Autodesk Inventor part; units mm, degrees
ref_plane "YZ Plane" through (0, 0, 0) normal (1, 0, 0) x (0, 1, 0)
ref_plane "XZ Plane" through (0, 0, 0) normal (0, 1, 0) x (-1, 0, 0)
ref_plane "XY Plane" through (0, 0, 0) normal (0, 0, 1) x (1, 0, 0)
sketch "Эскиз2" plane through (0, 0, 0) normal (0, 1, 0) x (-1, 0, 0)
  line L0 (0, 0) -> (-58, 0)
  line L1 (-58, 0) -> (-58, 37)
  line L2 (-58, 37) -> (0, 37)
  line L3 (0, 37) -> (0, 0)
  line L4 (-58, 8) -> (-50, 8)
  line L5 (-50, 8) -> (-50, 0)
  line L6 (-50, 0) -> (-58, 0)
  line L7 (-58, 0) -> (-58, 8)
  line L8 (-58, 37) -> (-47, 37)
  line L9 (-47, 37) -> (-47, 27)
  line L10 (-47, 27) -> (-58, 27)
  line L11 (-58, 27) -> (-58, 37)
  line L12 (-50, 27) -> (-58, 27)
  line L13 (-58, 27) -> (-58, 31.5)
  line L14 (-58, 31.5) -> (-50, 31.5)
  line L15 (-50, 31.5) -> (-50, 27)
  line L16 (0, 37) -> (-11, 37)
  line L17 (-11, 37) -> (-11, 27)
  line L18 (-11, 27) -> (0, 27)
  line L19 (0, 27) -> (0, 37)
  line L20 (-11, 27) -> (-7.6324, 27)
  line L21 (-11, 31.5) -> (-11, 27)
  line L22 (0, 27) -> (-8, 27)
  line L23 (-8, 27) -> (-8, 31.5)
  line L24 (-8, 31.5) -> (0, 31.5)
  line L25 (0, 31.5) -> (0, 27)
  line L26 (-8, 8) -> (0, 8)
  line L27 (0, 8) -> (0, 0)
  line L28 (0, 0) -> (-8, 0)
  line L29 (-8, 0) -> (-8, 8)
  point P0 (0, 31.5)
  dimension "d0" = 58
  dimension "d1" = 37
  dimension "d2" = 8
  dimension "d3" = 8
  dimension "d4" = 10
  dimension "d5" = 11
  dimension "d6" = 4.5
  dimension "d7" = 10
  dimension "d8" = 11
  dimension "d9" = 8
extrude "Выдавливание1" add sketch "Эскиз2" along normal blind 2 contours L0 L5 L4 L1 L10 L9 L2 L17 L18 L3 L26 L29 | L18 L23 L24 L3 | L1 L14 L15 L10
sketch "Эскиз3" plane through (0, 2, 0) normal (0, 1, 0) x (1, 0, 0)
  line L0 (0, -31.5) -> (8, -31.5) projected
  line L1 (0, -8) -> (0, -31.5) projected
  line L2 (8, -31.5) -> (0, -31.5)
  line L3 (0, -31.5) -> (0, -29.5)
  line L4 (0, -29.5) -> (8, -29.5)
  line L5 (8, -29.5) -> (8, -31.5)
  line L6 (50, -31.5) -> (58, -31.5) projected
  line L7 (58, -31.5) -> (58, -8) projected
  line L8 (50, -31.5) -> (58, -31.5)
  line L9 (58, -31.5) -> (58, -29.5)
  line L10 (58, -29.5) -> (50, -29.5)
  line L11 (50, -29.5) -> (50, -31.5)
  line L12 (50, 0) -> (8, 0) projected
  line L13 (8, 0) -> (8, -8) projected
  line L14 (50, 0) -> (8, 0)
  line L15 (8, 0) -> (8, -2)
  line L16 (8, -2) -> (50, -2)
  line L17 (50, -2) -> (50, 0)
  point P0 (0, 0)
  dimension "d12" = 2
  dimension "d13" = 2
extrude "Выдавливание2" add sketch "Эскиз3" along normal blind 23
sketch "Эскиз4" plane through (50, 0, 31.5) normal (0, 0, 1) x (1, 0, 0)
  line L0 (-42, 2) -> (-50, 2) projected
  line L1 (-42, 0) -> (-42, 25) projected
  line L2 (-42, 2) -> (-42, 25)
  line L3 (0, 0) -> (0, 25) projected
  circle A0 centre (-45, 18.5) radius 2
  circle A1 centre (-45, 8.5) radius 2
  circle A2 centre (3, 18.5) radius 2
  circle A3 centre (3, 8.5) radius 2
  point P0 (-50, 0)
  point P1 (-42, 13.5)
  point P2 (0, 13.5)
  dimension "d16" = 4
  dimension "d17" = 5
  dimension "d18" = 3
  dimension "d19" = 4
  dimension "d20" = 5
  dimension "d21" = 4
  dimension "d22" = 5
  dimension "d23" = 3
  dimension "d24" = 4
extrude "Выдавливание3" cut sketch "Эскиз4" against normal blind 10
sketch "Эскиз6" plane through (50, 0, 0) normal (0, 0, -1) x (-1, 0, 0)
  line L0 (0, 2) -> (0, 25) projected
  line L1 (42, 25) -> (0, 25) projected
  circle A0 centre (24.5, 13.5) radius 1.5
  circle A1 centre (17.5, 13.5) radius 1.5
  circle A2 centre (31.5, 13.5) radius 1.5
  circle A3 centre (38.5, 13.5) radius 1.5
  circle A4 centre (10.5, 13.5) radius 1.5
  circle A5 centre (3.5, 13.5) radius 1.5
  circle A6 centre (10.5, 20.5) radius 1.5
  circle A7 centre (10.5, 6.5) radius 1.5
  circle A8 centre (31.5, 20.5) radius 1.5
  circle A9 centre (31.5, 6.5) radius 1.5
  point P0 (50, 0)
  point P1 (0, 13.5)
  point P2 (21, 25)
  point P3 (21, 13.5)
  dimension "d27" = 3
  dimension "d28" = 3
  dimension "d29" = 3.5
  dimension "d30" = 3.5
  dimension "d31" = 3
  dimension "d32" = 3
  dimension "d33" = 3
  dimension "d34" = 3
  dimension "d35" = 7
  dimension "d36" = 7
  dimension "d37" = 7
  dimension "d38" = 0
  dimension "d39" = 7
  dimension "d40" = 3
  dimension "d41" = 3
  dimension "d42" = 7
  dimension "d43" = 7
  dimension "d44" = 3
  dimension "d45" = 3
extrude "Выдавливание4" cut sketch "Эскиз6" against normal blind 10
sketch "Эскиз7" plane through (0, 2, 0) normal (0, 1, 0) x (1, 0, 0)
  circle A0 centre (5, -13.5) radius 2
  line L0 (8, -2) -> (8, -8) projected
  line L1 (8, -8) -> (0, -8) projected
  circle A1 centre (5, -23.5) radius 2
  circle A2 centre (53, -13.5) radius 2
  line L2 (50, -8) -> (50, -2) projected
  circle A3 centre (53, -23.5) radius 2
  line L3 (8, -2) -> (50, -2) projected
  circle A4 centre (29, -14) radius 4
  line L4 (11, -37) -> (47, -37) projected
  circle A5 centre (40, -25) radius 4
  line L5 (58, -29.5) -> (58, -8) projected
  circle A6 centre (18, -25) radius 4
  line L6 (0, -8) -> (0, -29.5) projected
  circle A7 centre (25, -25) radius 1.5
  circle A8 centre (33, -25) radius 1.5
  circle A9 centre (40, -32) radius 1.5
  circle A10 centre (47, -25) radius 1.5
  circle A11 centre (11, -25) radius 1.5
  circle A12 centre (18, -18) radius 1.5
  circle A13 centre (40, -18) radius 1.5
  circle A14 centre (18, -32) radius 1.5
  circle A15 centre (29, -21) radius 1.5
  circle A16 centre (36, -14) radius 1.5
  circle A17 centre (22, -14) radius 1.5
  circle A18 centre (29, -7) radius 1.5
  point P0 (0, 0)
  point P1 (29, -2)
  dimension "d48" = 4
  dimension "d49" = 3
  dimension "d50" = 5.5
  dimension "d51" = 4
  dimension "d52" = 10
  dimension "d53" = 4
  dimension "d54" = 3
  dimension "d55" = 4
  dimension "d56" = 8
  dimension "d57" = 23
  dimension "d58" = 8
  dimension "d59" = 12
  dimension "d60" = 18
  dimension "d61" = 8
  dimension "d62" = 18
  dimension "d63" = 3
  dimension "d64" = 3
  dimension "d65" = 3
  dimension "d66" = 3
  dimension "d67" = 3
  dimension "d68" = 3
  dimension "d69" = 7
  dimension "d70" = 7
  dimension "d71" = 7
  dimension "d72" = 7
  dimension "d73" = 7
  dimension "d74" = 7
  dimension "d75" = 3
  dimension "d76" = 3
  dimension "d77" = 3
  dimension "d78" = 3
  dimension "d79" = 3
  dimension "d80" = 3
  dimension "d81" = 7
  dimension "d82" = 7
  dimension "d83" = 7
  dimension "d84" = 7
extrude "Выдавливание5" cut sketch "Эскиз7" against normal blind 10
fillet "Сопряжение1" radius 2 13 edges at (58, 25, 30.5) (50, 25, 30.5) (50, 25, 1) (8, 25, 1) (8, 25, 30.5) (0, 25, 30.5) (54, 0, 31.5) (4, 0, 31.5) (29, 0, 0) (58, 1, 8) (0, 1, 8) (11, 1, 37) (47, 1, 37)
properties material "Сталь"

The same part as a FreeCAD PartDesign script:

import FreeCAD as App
import Part
import Sketcher

V = App.Vector
Q = App.Units.Quantity


def edges_at(feature, points):
    """Names of the edges that pass closest to the given points."""
    edges = feature.Shape.Edges
    near = lambda p: min(range(len(edges)), key=lambda i: edges[i].distToShape(Part.Vertex(*p))[0])
    return sorted({f"Edge{near(p) + 1}" for p in points})


def add_polygon(sketch, points):
    """Adds a closed chain of lines whose ends are joined by coincident constraints."""
    first, n = sketch.GeometryCount, len(points)
    for a, b in zip(points, points[1:] + points[:1]):
        sketch.addGeometry(Part.LineSegment(App.Vector(*a, 0), App.Vector(*b, 0)), False)
    for i in range(n):
        sketch.addConstraint(Sketcher.Constraint("Coincident", first + i, 2, first + (i + 1) % n, 1))

doc = App.newDocument("Part")
body = doc.addObject("PartDesign::Body", "Body")

sketch1 = doc.addObject("Sketcher::SketchObject", "Sketch")
body.addObject(sketch1)
sketch1.AttachmentSupport = (doc.XZ_Plane, [""])
sketch1.MapMode = "FlatFace"
add_polygon(sketch1, [(50, 0), (8, 0), (8, 8), (0, 8), (0, 31.5), (8, 31.5), (8, 27), (11, 27), (11, 37), (47, 37), (47, 27), (50, 27), (50, 31.5), (58, 31.5), (58, 8), (50, 8)])
sketch1.addConstraint([
    Sketcher.Constraint("Horizontal", 0),
    Sketcher.Constraint("Vertical", 1),
    Sketcher.Constraint("Horizontal", 2),
    Sketcher.Constraint("Vertical", 3),
    Sketcher.Constraint("Horizontal", 4),
    Sketcher.Constraint("Vertical", 5),
    Sketcher.Constraint("Horizontal", 6),
    Sketcher.Constraint("Vertical", 7),
    Sketcher.Constraint("Horizontal", 8),
    Sketcher.Constraint("Vertical", 9),
    Sketcher.Constraint("Horizontal", 10),
    Sketcher.Constraint("Vertical", 11),
    Sketcher.Constraint("Horizontal", 12),
    Sketcher.Constraint("Vertical", 13),
    Sketcher.Constraint("Horizontal", 14),
    Sketcher.Constraint("Vertical", 15),
    Sketcher.Constraint("PointOnObject", 0, 2, -1),
    Sketcher.Constraint("PointOnObject", 2, 2, -2),
    Sketcher.Constraint("Horizontal", 6, 2, 9, 2),
    Sketcher.Constraint("Horizontal", 4, 2, 11, 2),
    Sketcher.Constraint("Horizontal", 2, 2, 13, 2),
    Sketcher.Constraint("Vertical", 1, 2, 4, 2),
    Sketcher.Constraint("Vertical", 11, 2, 14, 2),
    Sketcher.Constraint("Equal", 6, 10),
    Sketcher.Constraint("Equal", 4, 12),
    Sketcher.Constraint("Equal", 14, 1),
    Sketcher.Constraint("DistanceX", 2, 2, 2, 1, Q("8 mm")),
    Sketcher.Constraint("DistanceY", 7, 1, 7, 2, Q("10 mm")),
    Sketcher.Constraint("DistanceY", 5, 2, 5, 1, Q("4.5 mm")),
    Sketcher.Constraint("DistanceX", -1, 1, 6, 2, Q("11 mm")),
    Sketcher.Constraint("DistanceY", -1, 1, 7, 2, Q("37 mm")),
    Sketcher.Constraint("DistanceX", -1, 1, 12, 2, Q("58 mm")),
])
pad1 = doc.addObject("PartDesign::Pad", "Pad")
body.addObject(pad1)
pad1.Profile = sketch1
pad1.Length = 2
pad1.Reversed = True

sketch2 = doc.addObject("Sketcher::SketchObject", "Sketch001")
body.addObject(sketch2)
sketch2.AttachmentSupport = (doc.XZ_Plane, [""])
sketch2.MapMode = "FlatFace"
sketch2.AttachmentOffset = App.Placement(V(0, 0, -2), App.Rotation())
add_polygon(sketch2, [(0, 29.5), (0, 31.5), (8, 31.5), (8, 29.5)])
add_polygon(sketch2, [(50, 29.5), (50, 31.5), (58, 31.5), (58, 29.5)])
add_polygon(sketch2, [(50, 2), (50, 0), (8, 0), (8, 2)])
sketch2.addConstraint([
    Sketcher.Constraint("Vertical", 0),
    Sketcher.Constraint("Horizontal", 1),
    Sketcher.Constraint("Vertical", 2),
    Sketcher.Constraint("Horizontal", 3),
    Sketcher.Constraint("Vertical", 4),
    Sketcher.Constraint("Horizontal", 5),
    Sketcher.Constraint("Vertical", 6),
    Sketcher.Constraint("Horizontal", 7),
    Sketcher.Constraint("Vertical", 8),
    Sketcher.Constraint("Horizontal", 9),
    Sketcher.Constraint("Vertical", 10),
    Sketcher.Constraint("Horizontal", 11),
    Sketcher.Constraint("PointOnObject", 0, 2, -2),
    Sketcher.Constraint("PointOnObject", 8, 2, -1),
    Sketcher.Constraint("Horizontal", 1, 2, 4, 2),
    Sketcher.Constraint("Horizontal", 3, 2, 6, 2),
    Sketcher.Constraint("Vertical", 7, 2, 8, 2),
    Sketcher.Constraint("Vertical", 2, 2, 9, 2),
    Sketcher.Constraint("Equal", 3, 5),
    Sketcher.Constraint("Equal", 6, 8),
    Sketcher.Constraint("DistanceY", 0, 1, 0, 2, Q("2 mm")),
    Sketcher.Constraint("DistanceX", 1, 1, 1, 2, Q("8 mm")),
    Sketcher.Constraint("DistanceX", 9, 2, 9, 1, Q("42 mm")),
    Sketcher.Constraint("DistanceY", -1, 1, 0, 2, Q("31.5 mm")),
])
pad2 = doc.addObject("PartDesign::Pad", "Pad001")
body.addObject(pad2)
pad2.Profile = sketch2
pad2.Length = 23
pad2.Reversed = True

sketch3 = doc.addObject("Sketcher::SketchObject", "Sketch002")
body.addObject(sketch3)
sketch3.AttachmentSupport = (doc.XY_Plane, [""])
sketch3.MapMode = "FlatFace"
sketch3.AttachmentOffset = App.Placement(V(0, 0, 31.5), App.Rotation())
sketch3.addGeometry([
    Part.Circle(V(5, 18.5, 0), V(0, 0, 1), 2),
    Part.Circle(V(5, 8.5, 0), V(0, 0, 1), 2),
    Part.Circle(V(53, 18.5, 0), V(0, 0, 1), 2),
    Part.Circle(V(53, 8.5, 0), V(0, 0, 1), 2),
], False)
sketch3.addConstraint([
    Sketcher.Constraint("Equal", 0, 1),
    Sketcher.Constraint("Equal", 1, 2),
    Sketcher.Constraint("Equal", 2, 3),
    Sketcher.Constraint("Horizontal", 0, 3, 2, 3),
    Sketcher.Constraint("Horizontal", 1, 3, 3, 3),
    Sketcher.Constraint("Vertical", 0, 3, 1, 3),
    Sketcher.Constraint("Vertical", 2, 3, 3, 3),
    Sketcher.Constraint("Diameter", 0, Q("4 mm")),
    Sketcher.Constraint("DistanceX", -1, 1, 0, 3, Q("5 mm")),
    Sketcher.Constraint("DistanceX", -1, 1, 2, 3, Q("53 mm")),
    Sketcher.Constraint("DistanceY", 1, 3, 0, 3, Q("10 mm")),
    Sketcher.Constraint("DistanceY", -1, 1, 0, 3, Q("18.5 mm")),
])
pocket1 = doc.addObject("PartDesign::Pocket", "Pocket")
body.addObject(pocket1)
pocket1.Profile = sketch3
pocket1.Length = 10

sketch4 = doc.addObject("Sketcher::SketchObject", "Sketch003")
body.addObject(sketch4)
sketch4.AttachmentSupport = (doc.XY_Plane, [""])
sketch4.MapMode = "FlatFace"
sketch4.addGeometry([
    Part.Circle(V(25.5, 13.5, 0), V(0, 0, 1), 1.5),
    Part.Circle(V(32.5, 13.5, 0), V(0, 0, 1), 1.5),
    Part.Circle(V(18.5, 13.5, 0), V(0, 0, 1), 1.5),
    Part.Circle(V(11.5, 13.5, 0), V(0, 0, 1), 1.5),
    Part.Circle(V(39.5, 13.5, 0), V(0, 0, 1), 1.5),
    Part.Circle(V(46.5, 13.5, 0), V(0, 0, 1), 1.5),
    Part.Circle(V(39.5, 20.5, 0), V(0, 0, 1), 1.5),
    Part.Circle(V(39.5, 6.5, 0), V(0, 0, 1), 1.5),
    Part.Circle(V(18.5, 20.5, 0), V(0, 0, 1), 1.5),
    Part.Circle(V(18.5, 6.5, 0), V(0, 0, 1), 1.5),
], False)
sketch4.addConstraint([
    Sketcher.Constraint("Equal", 0, 1),
    Sketcher.Constraint("Equal", 1, 2),
    Sketcher.Constraint("Equal", 2, 3),
    Sketcher.Constraint("Equal", 3, 4),
    Sketcher.Constraint("Equal", 4, 5),
    Sketcher.Constraint("Equal", 5, 6),
    Sketcher.Constraint("Equal", 6, 7),
    Sketcher.Constraint("Equal", 7, 8),
    Sketcher.Constraint("Equal", 8, 9),
    Sketcher.Constraint("Horizontal", 0, 3, 1, 3),
    Sketcher.Constraint("Horizontal", 1, 3, 2, 3),
    Sketcher.Constraint("Horizontal", 2, 3, 3, 3),
    Sketcher.Constraint("Horizontal", 3, 3, 4, 3),
    Sketcher.Constraint("Horizontal", 4, 3, 5, 3),
    Sketcher.Constraint("Horizontal", 6, 3, 8, 3),
    Sketcher.Constraint("Horizontal", 7, 3, 9, 3),
    Sketcher.Constraint("Vertical", 4, 3, 6, 3),
    Sketcher.Constraint("Vertical", 6, 3, 7, 3),
    Sketcher.Constraint("Vertical", 2, 3, 8, 3),
    Sketcher.Constraint("Vertical", 8, 3, 9, 3),
    Sketcher.Constraint("Diameter", 0, Q("3 mm")),
    Sketcher.Constraint("DistanceX", 0, 3, 1, 3, Q("7 mm")),
    Sketcher.Constraint("DistanceX", 2, 3, 0, 3, Q("7 mm")),
    Sketcher.Constraint("DistanceX", 3, 3, 2, 3, Q("7 mm")),
    Sketcher.Constraint("DistanceX", 1, 3, 4, 3, Q("7 mm")),
    Sketcher.Constraint("DistanceX", 4, 3, 5, 3, Q("7 mm")),
    Sketcher.Constraint("DistanceY", 4, 3, 6, 3, Q("7 mm")),
    Sketcher.Constraint("DistanceY", 7, 3, 4, 3, Q("7 mm")),
    Sketcher.Constraint("DistanceX", -1, 1, 0, 3, Q("25.5 mm")),
    Sketcher.Constraint("DistanceY", -1, 1, 0, 3, Q("13.5 mm")),
])
pocket2 = doc.addObject("PartDesign::Pocket", "Pocket001")
body.addObject(pocket2)
pocket2.Profile = sketch4
pocket2.Length = 10
pocket2.Reversed = True

sketch5 = doc.addObject("Sketcher::SketchObject", "Sketch004")
body.addObject(sketch5)
sketch5.AttachmentSupport = (doc.XZ_Plane, [""])
sketch5.MapMode = "FlatFace"
sketch5.AttachmentOffset = App.Placement(V(0, 0, -2), App.Rotation())
sketch5.addGeometry([
    Part.Circle(V(5, 13.5, 0), V(0, 0, 1), 2),
    Part.Circle(V(5, 23.5, 0), V(0, 0, 1), 2),
    Part.Circle(V(53, 13.5, 0), V(0, 0, 1), 2),
    Part.Circle(V(53, 23.5, 0), V(0, 0, 1), 2),
    Part.Circle(V(29, 14, 0), V(0, 0, 1), 4),
    Part.Circle(V(40, 25, 0), V(0, 0, 1), 4),
    Part.Circle(V(18, 25, 0), V(0, 0, 1), 4),
    Part.Circle(V(25, 25, 0), V(0, 0, 1), 1.5),
    Part.Circle(V(33, 25, 0), V(0, 0, 1), 1.5),
    Part.Circle(V(40, 32, 0), V(0, 0, 1), 1.5),
    Part.Circle(V(47, 25, 0), V(0, 0, 1), 1.5),
    Part.Circle(V(11, 25, 0), V(0, 0, 1), 1.5),
    Part.Circle(V(18, 18, 0), V(0, 0, 1), 1.5),
    Part.Circle(V(40, 18, 0), V(0, 0, 1), 1.5),
    Part.Circle(V(18, 32, 0), V(0, 0, 1), 1.5),
    Part.Circle(V(29, 21, 0), V(0, 0, 1), 1.5),
    Part.Circle(V(36, 14, 0), V(0, 0, 1), 1.5),
    Part.Circle(V(22, 14, 0), V(0, 0, 1), 1.5),
    Part.Circle(V(29, 7, 0), V(0, 0, 1), 1.5),
], False)
sketch5.addConstraint([
    Sketcher.Constraint("Equal", 0, 1),
    Sketcher.Constraint("Equal", 1, 2),
    Sketcher.Constraint("Equal", 2, 3),
    Sketcher.Constraint("Equal", 4, 5),
    Sketcher.Constraint("Equal", 5, 6),
    Sketcher.Constraint("Equal", 7, 8),
    Sketcher.Constraint("Equal", 8, 9),
    Sketcher.Constraint("Equal", 9, 10),
    Sketcher.Constraint("Equal", 10, 11),
    Sketcher.Constraint("Equal", 11, 12),
    Sketcher.Constraint("Equal", 12, 13),
    Sketcher.Constraint("Equal", 13, 14),
    Sketcher.Constraint("Equal", 14, 15),
    Sketcher.Constraint("Equal", 15, 16),
    Sketcher.Constraint("Equal", 16, 17),
    Sketcher.Constraint("Equal", 17, 18),
    Sketcher.Constraint("Horizontal", 0, 3, 2, 3),
    Sketcher.Constraint("Horizontal", 1, 3, 3, 3),
    Sketcher.Constraint("Horizontal", 5, 3, 6, 3),
    Sketcher.Constraint("Horizontal", 6, 3, 7, 3),
    Sketcher.Constraint("Horizontal", 7, 3, 8, 3),
    Sketcher.Constraint("Horizontal", 8, 3, 10, 3),
    Sketcher.Constraint("Horizontal", 10, 3, 11, 3),
    Sketcher.Constraint("Horizontal", 12, 3, 13, 3),
    Sketcher.Constraint("Horizontal", 9, 3, 14, 3),
    Sketcher.Constraint("Horizontal", 4, 3, 16, 3),
    Sketcher.Constraint("Horizontal", 16, 3, 17, 3),
    Sketcher.Constraint("Vertical", 0, 3, 1, 3),
    Sketcher.Constraint("Vertical", 2, 3, 3, 3),
    Sketcher.Constraint("Vertical", 5, 3, 9, 3),
    Sketcher.Constraint("Vertical", 6, 3, 12, 3),
    Sketcher.Constraint("Vertical", 9, 3, 13, 3),
    Sketcher.Constraint("Vertical", 12, 3, 14, 3),
    Sketcher.Constraint("Vertical", 4, 3, 15, 3),
    Sketcher.Constraint("Vertical", 15, 3, 18, 3),
    Sketcher.Constraint("Diameter", 0, Q("4 mm")),
    Sketcher.Constraint("Diameter", 4, Q("8 mm")),
    Sketcher.Constraint("Diameter", 7, Q("3 mm")),
    Sketcher.Constraint("DistanceX", -1, 1, 6, 3, Q("18 mm")),
    Sketcher.Constraint("DistanceY", -1, 1, 12, 3, Q("18 mm")),
    Sketcher.Constraint("DistanceY", -1, 1, 18, 3, Q("7 mm")),
    Sketcher.Constraint("DistanceY", 0, 3, 1, 3, Q("10 mm")),
    Sketcher.Constraint("DistanceX", 6, 3, 7, 3, Q("7 mm")),
    Sketcher.Constraint("DistanceX", 7, 3, 4, 3, Q("4 mm")),
    Sketcher.Constraint("DistanceX", 8, 3, 5, 3, Q("7 mm")),
    Sketcher.Constraint("DistanceX", 7, 3, 8, 3, Q("8 mm")),
    Sketcher.Constraint("DistanceY", 5, 3, 9, 3, Q("7 mm")),
    Sketcher.Constraint("DistanceY", 4, 3, 9, 3, Q("18 mm")),
    Sketcher.Constraint("DistanceX", 5, 3, 10, 3, Q("7 mm")),
    Sketcher.Constraint("DistanceX", 11, 3, 6, 3, Q("7 mm")),
    Sketcher.Constraint("DistanceY", 12, 3, 6, 3, Q("7 mm")),
    Sketcher.Constraint("DistanceY", 15, 3, 7, 3, Q("4 mm")),
    Sketcher.Constraint("DistanceX", 16, 3, 13, 3, Q("4 mm")),
    Sketcher.Constraint("DistanceX", 12, 3, 17, 3, Q("4 mm")),
    Sketcher.Constraint("DistanceX", -1, 1, 0, 3, Q("5 mm")),
    Sketcher.Constraint("DistanceX", -1, 1, 2, 3, Q("53 mm")),
    Sketcher.Constraint("DistanceY", -1, 1, 0, 3, Q("13.5 mm")),
])
pocket3 = doc.addObject("PartDesign::Pocket", "Pocket002")
body.addObject(pocket3)
pocket3.Profile = sketch5
pocket3.Length = 10
pocket3.Reversed = True
doc.recompute()

fillet = doc.addObject("PartDesign::Fillet", "Fillet")
body.addObject(fillet)
fillet.Base = (pocket3, edges_at(pocket3, [
    (58, 25, 30.5),
    (50, 25, 30.5),
    (50, 25, 1),
    (8, 25, 1),
    (8, 25, 30.5),
    (0, 25, 30.5),
    (54, 0, 31.5),
    (4, 0, 31.5),
    (29, 0, 0),
    (58, 1, 8),
    (0, 1, 8),
    (11, 1, 37),
    (47, 1, 37),
]))
fillet.Radius = 2

doc.recompute()
